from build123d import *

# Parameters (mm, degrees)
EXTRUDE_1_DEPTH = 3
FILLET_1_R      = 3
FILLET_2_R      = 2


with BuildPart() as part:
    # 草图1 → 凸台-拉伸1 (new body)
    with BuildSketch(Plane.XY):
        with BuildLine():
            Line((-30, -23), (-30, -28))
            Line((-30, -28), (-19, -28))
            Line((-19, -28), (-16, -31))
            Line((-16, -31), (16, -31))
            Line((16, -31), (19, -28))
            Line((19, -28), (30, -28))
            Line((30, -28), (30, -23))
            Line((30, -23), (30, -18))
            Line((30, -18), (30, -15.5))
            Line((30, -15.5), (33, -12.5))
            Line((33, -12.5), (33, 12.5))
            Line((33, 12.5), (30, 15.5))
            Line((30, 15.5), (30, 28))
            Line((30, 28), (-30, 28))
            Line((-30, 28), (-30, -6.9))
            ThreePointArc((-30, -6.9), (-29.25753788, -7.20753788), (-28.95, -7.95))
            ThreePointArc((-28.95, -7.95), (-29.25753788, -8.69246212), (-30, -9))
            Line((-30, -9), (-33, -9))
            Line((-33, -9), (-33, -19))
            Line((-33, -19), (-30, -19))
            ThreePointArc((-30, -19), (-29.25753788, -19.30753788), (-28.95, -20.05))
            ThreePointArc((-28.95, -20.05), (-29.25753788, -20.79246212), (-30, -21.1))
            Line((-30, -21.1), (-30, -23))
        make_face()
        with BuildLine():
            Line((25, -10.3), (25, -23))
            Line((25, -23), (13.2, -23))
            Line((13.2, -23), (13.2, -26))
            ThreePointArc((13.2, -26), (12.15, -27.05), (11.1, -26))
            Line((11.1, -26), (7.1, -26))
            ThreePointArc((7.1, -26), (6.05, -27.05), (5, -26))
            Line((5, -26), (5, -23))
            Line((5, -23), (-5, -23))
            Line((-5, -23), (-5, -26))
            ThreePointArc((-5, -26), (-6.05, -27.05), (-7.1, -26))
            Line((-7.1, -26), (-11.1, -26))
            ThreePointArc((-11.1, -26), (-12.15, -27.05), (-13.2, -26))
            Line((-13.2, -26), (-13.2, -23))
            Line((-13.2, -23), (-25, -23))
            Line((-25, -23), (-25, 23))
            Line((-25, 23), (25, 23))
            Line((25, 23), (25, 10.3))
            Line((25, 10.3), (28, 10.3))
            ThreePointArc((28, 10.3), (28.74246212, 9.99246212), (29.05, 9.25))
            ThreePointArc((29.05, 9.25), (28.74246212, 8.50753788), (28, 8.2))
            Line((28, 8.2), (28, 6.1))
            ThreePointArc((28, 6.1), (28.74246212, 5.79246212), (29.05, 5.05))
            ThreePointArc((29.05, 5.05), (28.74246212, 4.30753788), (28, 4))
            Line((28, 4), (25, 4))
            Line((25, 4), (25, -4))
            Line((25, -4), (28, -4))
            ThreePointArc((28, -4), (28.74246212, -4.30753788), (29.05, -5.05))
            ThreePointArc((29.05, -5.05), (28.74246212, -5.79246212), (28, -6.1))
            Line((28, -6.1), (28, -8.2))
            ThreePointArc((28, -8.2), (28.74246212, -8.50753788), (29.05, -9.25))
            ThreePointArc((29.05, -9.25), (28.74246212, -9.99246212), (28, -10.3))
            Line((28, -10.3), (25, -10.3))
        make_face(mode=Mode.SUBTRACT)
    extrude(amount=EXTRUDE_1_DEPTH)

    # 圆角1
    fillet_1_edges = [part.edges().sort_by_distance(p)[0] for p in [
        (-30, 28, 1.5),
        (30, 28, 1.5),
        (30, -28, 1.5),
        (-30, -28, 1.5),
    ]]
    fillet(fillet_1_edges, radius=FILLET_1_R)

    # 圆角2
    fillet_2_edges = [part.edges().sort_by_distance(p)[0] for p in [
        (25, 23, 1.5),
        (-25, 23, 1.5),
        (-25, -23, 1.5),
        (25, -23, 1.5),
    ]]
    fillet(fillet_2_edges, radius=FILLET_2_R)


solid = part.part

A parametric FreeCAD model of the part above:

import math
import FreeCAD as App
import Part
import Sketcher
from FreeCAD import Vector


def edges_at(feature, points):
    """Names of the edges that pass closest to the given points."""
    edges = feature.Shape.Edges
    near = lambda p: min(range(len(edges)), key=lambda i: edges[i].distToShape(Part.Vertex(*p))[0])
    return sorted({f"Edge{near(p) + 1}" for p in points})

doc = App.newDocument("Part")
body = doc.addObject("PartDesign::Body", "Body")

# Sketch on XY plane
sketch1 = doc.addObject("Sketcher::SketchObject", "Sketch")
body.addObject(sketch1)
sketch1.AttachmentSupport = (doc.XY_Plane, [""])
sketch1.MapMode = "FlatFace"
sketch1.addGeometry([
    Part.LineSegment(Vector(-30, -28, 0), Vector(-19, -28, 0)),  # 0
    Part.LineSegment(Vector(-19, -28, 0), Vector(-16, -31, 0)),  # 1
    Part.LineSegment(Vector(-16, -31, 0), Vector(16, -31, 0)),  # 2
    Part.LineSegment(Vector(16, -31, 0), Vector(19, -28, 0)),  # 3
    Part.LineSegment(Vector(19, -28, 0), Vector(30, -28, 0)),  # 4
    Part.LineSegment(Vector(30, -28, 0), Vector(30, -15.5, 0)),  # 5
    Part.LineSegment(Vector(30, -15.5, 0), Vector(33, -12.5, 0)),  # 6
    Part.LineSegment(Vector(33, -12.5, 0), Vector(33, 12.5, 0)),  # 7
    Part.LineSegment(Vector(33, 12.5, 0), Vector(30, 15.5, 0)),  # 8
    Part.LineSegment(Vector(30, 15.5, 0), Vector(30, 28, 0)),  # 9
    Part.LineSegment(Vector(30, 28, 0), Vector(-30, 28, 0)),  # 10
    Part.LineSegment(Vector(-30, 28, 0), Vector(-30, -6.9, 0)),  # 11
    Part.ArcOfCircle(Part.Circle(Vector(-30, -8, 0), Vector(0, 0, 1), 1.1), math.radians(0), math.radians(90)),  # 12
    Part.ArcOfCircle(Part.Circle(Vector(-30, -7.9, 0), Vector(0, 0, 1), 1.1), math.radians(-90), math.radians(0)),  # 13
    Part.LineSegment(Vector(-30, -9, 0), Vector(-33, -9, 0)),  # 14
    Part.LineSegment(Vector(-33, -9, 0), Vector(-33, -19, 0)),  # 15
    Part.LineSegment(Vector(-33, -19, 0), Vector(-30, -19, 0)),  # 16
    Part.ArcOfCircle(Part.Circle(Vector(-30, -20.1, 0), Vector(0, 0, 1), 1.1), math.radians(0), math.radians(90)),  # 17
    Part.ArcOfCircle(Part.Circle(Vector(-30, -20, 0), Vector(0, 0, 1), 1.1), math.radians(-90), math.radians(0)),  # 18
    Part.LineSegment(Vector(-30, -21.1, 0), Vector(-30, -28, 0)),  # 19
    Part.LineSegment(Vector(28, -10.3, 0), Vector(25, -10.3, 0)),  # 20
    Part.LineSegment(Vector(25, -10.3, 0), Vector(25, -23, 0)),  # 21
    Part.LineSegment(Vector(25, -23, 0), Vector(13.2, -23, 0)),  # 22
    Part.LineSegment(Vector(13.2, -23, 0), Vector(13.2, -26, 0)),  # 23
    Part.ArcOfCircle(Part.Circle(Vector(12.2, -26, 0), Vector(0, 0, 1), 1.1), math.radians(180), math.radians(360)),  # 24
    Part.LineSegment(Vector(11.1, -26, 0), Vector(7.1, -26, 0)),  # 25
    Part.ArcOfCircle(Part.Circle(Vector(6, -26, 0), Vector(0, 0, 1), 1.1), math.radians(180), math.radians(360)),  # 26
    Part.LineSegment(Vector(5, -26, 0), Vector(5, -23, 0)),  # 27
    Part.LineSegment(Vector(5, -23, 0), Vector(-5, -23, 0)),  # 28
    Part.LineSegment(Vector(-5, -23, 0), Vector(-5, -26, 0)),  # 29
    Part.ArcOfCircle(Part.Circle(Vector(-6, -26, 0), Vector(0, 0, 1), 1.1), math.radians(180), math.radians(360)),  # 30
    Part.LineSegment(Vector(-7.1, -26, 0), Vector(-11.1, -26, 0)),  # 31
    Part.ArcOfCircle(Part.Circle(Vector(-12.2, -26, 0), Vector(0, 0, 1), 1.1), math.radians(180), math.radians(360)),  # 32
    Part.LineSegment(Vector(-13.2, -26, 0), Vector(-13.2, -23, 0)),  # 33
    Part.LineSegment(Vector(-13.2, -23, 0), Vector(-25, -23, 0)),  # 34
    Part.LineSegment(Vector(-25, -23, 0), Vector(-25, 23, 0)),  # 35
    Part.LineSegment(Vector(-25, 23, 0), Vector(25, 23, 0)),  # 36
    Part.LineSegment(Vector(25, 23, 0), Vector(25, 10.3, 0)),  # 37
    Part.LineSegment(Vector(25, 10.3, 0), Vector(28, 10.3, 0)),  # 38
    Part.ArcOfCircle(Part.Circle(Vector(28, 9.2, 0), Vector(0, 0, 1), 1.1), math.radians(0), math.radians(90)),  # 39
    Part.ArcOfCircle(Part.Circle(Vector(28, 9.3, 0), Vector(0, 0, 1), 1.1), math.radians(-90), math.radians(0)),  # 40
    Part.LineSegment(Vector(28, 8.2, 0), Vector(28, 6.1, 0)),  # 41
    Part.ArcOfCircle(Part.Circle(Vector(28, 5, 0), Vector(0, 0, 1), 1.1), math.radians(0), math.radians(90)),  # 42
    Part.ArcOfCircle(Part.Circle(Vector(28, 5.1, 0), Vector(0, 0, 1), 1.1), math.radians(-90), math.radians(0)),  # 43
    Part.LineSegment(Vector(28, 4, 0), Vector(25, 4, 0)),  # 44
    Part.LineSegment(Vector(25, 4, 0), Vector(25, -4, 0)),  # 45
    Part.LineSegment(Vector(25, -4, 0), Vector(28, -4, 0)),  # 46
    Part.ArcOfCircle(Part.Circle(Vector(28, -5.1, 0), Vector(0, 0, 1), 1.1), math.radians(0), math.radians(90)),  # 47
    Part.ArcOfCircle(Part.Circle(Vector(28, -5, 0), Vector(0, 0, 1), 1.1), math.radians(-90), math.radians(0)),  # 48
    Part.LineSegment(Vector(28, -6.1, 0), Vector(28, -8.2, 0)),  # 49
    Part.ArcOfCircle(Part.Circle(Vector(28, -9.3, 0), Vector(0, 0, 1), 1.1), math.radians(0), math.radians(90)),  # 50
    Part.ArcOfCircle(Part.Circle(Vector(28, -9.2, 0), Vector(0, 0, 1), 1.1), math.radians(-90), math.radians(0)),  # 51
], False)
sketch1.addConstraint([
    Sketcher.Constraint("Coincident", 0, 2, 1, 1),
    Sketcher.Constraint("Coincident", 1, 2, 2, 1),
    Sketcher.Constraint("Coincident", 2, 2, 3, 1),
    Sketcher.Constraint("Coincident", 3, 2, 4, 1),
    Sketcher.Constraint("Coincident", 4, 2, 5, 1),
    Sketcher.Constraint("Coincident", 5, 2, 6, 1),
    Sketcher.Constraint("Coincident", 6, 2, 7, 1),
    Sketcher.Constraint("Coincident", 7, 2, 8, 1),
    Sketcher.Constraint("Coincident", 8, 2, 9, 1),
    Sketcher.Constraint("Coincident", 9, 2, 10, 1),
    Sketcher.Constraint("Coincident", 10, 2, 11, 1),
    Sketcher.Constraint("Coincident", 11, 2, 12, 2),
    Sketcher.Constraint("Tangent", 12, 1, 13, 2),
    Sketcher.Constraint("Tangent", 13, 1, 14, 1),
    Sketcher.Constraint("Coincident", 14, 2, 15, 1),
    Sketcher.Constraint("Coincident", 15, 2, 16, 1),
    Sketcher.Constraint("Tangent", 16, 2, 17, 2),
    Sketcher.Constraint("Tangent", 17, 1, 18, 2),
    Sketcher.Constraint("Coincident", 18, 1, 19, 1),
    Sketcher.Constraint("Coincident", 19, 2, 0, 1),
    Sketcher.Constraint("Coincident", 20, 2, 21, 1),
    Sketcher.Constraint("Coincident", 21, 2, 22, 1),
    Sketcher.Constraint("Coincident", 22, 2, 23, 1),
    Sketcher.Constraint("Tangent", 23, 2, 24, 2),
    Sketcher.Constraint("Coincident", 24, 1, 25, 1),
    Sketcher.Constraint("Coincident", 25, 2, 26, 2),
    Sketcher.Constraint("Tangent", 26, 1, 27, 1),
    Sketcher.Constraint("Coincident", 27, 2, 28, 1),
    Sketcher.Constraint("Coincident", 28, 2, 29, 1),
    Sketcher.Constraint("Tangent", 29, 2, 30, 2),
    Sketcher.Constraint("Coincident", 30, 1, 31, 1),
    Sketcher.Constraint("Coincident", 31, 2, 32, 2),
    Sketcher.Constraint("Tangent", 32, 1, 33, 1),
    Sketcher.Constraint("Coincident", 33, 2, 34, 1),
    Sketcher.Constraint("Coincident", 34, 2, 35, 1),
    Sketcher.Constraint("Coincident", 35, 2, 36, 1),
    Sketcher.Constraint("Coincident", 36, 2, 37, 1),
    Sketcher.Constraint("Coincident", 37, 2, 38, 1),
    Sketcher.Constraint("Tangent", 38, 2, 39, 2),
    Sketcher.Constraint("Tangent", 39, 1, 40, 2),
    Sketcher.Constraint("Coincident", 40, 1, 41, 1),
    Sketcher.Constraint("Coincident", 41, 2, 42, 2),
    Sketcher.Constraint("Tangent", 42, 1, 43, 2),
    Sketcher.Constraint("Tangent", 43, 1, 44, 1),
    Sketcher.Constraint("Coincident", 44, 2, 45, 1),
    Sketcher.Constraint("Coincident", 45, 2, 46, 1),
    Sketcher.Constraint("Tangent", 46, 2, 47, 2),
    Sketcher.Constraint("Tangent", 47, 1, 48, 2),
    Sketcher.Constraint("Coincident", 48, 1, 49, 1),
    Sketcher.Constraint("Coincident", 49, 2, 50, 2),
    Sketcher.Constraint("Tangent", 50, 1, 51, 2),
    Sketcher.Constraint("Tangent", 51, 1, 20, 1),
    Sketcher.Constraint("Horizontal", 0),
    Sketcher.Constraint("Horizontal", 2),
    Sketcher.Constraint("Horizontal", 4),
    Sketcher.Constraint("Vertical", 5),
    Sketcher.Constraint("Vertical", 7),
    Sketcher.Constraint("Vertical", 9),
    Sketcher.Constraint("Horizontal", 10),
    Sketcher.Constraint("Vertical", 11),
    Sketcher.Constraint("Horizontal", 14),
    Sketcher.Constraint("Vertical", 15),
    Sketcher.Constraint("Horizontal", 16),
    Sketcher.Constraint("Vertical", 19),
    Sketcher.Constraint("Horizontal", 20),
    Sketcher.Constraint("Vertical", 21),
    Sketcher.Constraint("Horizontal", 22),
    Sketcher.Constraint("Vertical", 23),
    Sketcher.Constraint("Horizontal", 25),
    Sketcher.Constraint("Vertical", 27),
    Sketcher.Constraint("Horizontal", 28),
    Sketcher.Constraint("Vertical", 29),
    Sketcher.Constraint("Horizontal", 31),
    Sketcher.Constraint("Vertical", 33),
    Sketcher.Constraint("Horizontal", 34),
    Sketcher.Constraint("Vertical", 35),
    Sketcher.Constraint("Horizontal", 36),
    Sketcher.Constraint("Vertical", 37),
    Sketcher.Constraint("Horizontal", 38),
    Sketcher.Constraint("Vertical", 41),
    Sketcher.Constraint("Horizontal", 44),
    Sketcher.Constraint("Vertical", 45),
    Sketcher.Constraint("Horizontal", 46),
    Sketcher.Constraint("Vertical", 49),
    Sketcher.Constraint("Equal", 12, 13),
    Sketcher.Constraint("Equal", 13, 17),
    Sketcher.Constraint("Equal", 17, 18),
    Sketcher.Constraint("Equal", 18, 24),
    Sketcher.Constraint("Equal", 24, 26),
    Sketcher.Constraint("Equal", 26, 30),
    Sketcher.Constraint("Equal", 30, 32),
    Sketcher.Constraint("Equal", 32, 39),
    Sketcher.Constraint("Equal", 39, 40),
    Sketcher.Constraint("Equal", 40, 42),
    Sketcher.Constraint("Equal", 42, 43),
    Sketcher.Constraint("Equal", 43, 47),
    Sketcher.Constraint("Equal", 47, 48),
    Sketcher.Constraint("Equal", 48, 50),
    Sketcher.Constraint("Equal", 50, 51),
    Sketcher.Constraint("Symmetric", 4, 2, 10, 2, -1, 1),
    Sketcher.Constraint("Symmetric", 9, 2, 19, 2, -1, 1),
    Sketcher.Constraint("Symmetric", 21, 2, 35, 2, -1, 1),
    Sketcher.Constraint("Symmetric", 34, 2, 36, 2, -1, 1),
    Sketcher.Constraint("Symmetric", 26, 3, 30, 3, -2),
    Sketcher.Constraint("Symmetric", 24, 3, 32, 3, -2),
    Sketcher.Constraint("Symmetric", 42, 3, 47, 3, -1),
    Sketcher.Constraint("Symmetric", 39, 3, 50, 3, -1),
    Sketcher.Constraint("Symmetric", 5, 2, 8, 2, -1),
    Sketcher.Constraint("Perpendicular", 1, 3),
    Sketcher.Constraint("Parallel", 3, 6),
    Sketcher.Constraint("Perpendicular", 6, 8),
    Sketcher.Constraint("Horizontal", 24, 3, 26, 3),
    Sketcher.Constraint("Horizontal", 13, 3, 12, 1),
    Sketcher.Constraint("Horizontal", 18, 3, 17, 1),
    Sketcher.Constraint("Horizontal", 23, 2, 24, 1),
    Sketcher.Constraint("Horizontal", 22, 2, 27, 2),
    Sketcher.Constraint("Horizontal", 29, 2, 30, 1),
    Sketcher.Constraint("Horizontal", 40, 3, 39, 1),
    Sketcher.Constraint("Horizontal", 43, 3, 42, 1),
    Sketcher.Constraint("Horizontal", 48, 3, 47, 1),
    Sketcher.Constraint("Horizontal", 51, 3, 50, 1),
    Sketcher.Constraint("Vertical", 13, 3, 17, 3),
    Sketcher.Constraint("Vertical", 40, 3, 42, 3),
    Sketcher.Constraint("Vertical", 18, 3, 10, 2),
    Sketcher.Constraint("Vertical", 38, 2, 40, 1),
    Sketcher.Constraint("Vertical", 37, 2, 44, 2),
    Sketcher.Constraint("Vertical", 46, 2, 48, 1),
    Sketcher.Constraint("Equal", 0, 4),
    Sketcher.Constraint("Equal", 16, 20),
    Sketcher.Constraint("Equal", 28, 15),
    Sketcher.Constraint("Equal", 46, 23),
    Sketcher.Constraint("Equal", 1, 3),
    Sketcher.Constraint("Equal", 3, 6),
    Sketcher.Constraint("DistanceX", 0, 1, 0, 2, 11.0),
    Sketcher.Constraint("DistanceX", 2, 1, 2, 2, 32.0),
    Sketcher.Constraint("DistanceX", 10, 2, 10, 1, 60.0),
    Sketcher.Constraint("DistanceX", 14, 2, 14, 1, 3.0),
    Sketcher.Constraint("DistanceX", 25, 2, 25, 1, 4.0),
    Sketcher.Constraint("DistanceX", 28, 2, 28, 1, 10.0),
    Sketcher.Constraint("DistanceX", 36, 1, 36, 2, 50.0),
    Sketcher.Constraint("DistanceY", 7, 1, 7, 2, 25.0),
    Sketcher.Constraint("DistanceY", 35, 1, 35, 2, 46.0),
    Sketcher.Constraint("DistanceY", 45, 2, 45, 1, 8.0),
    Sketcher.Constraint("Radius", 12, 1.05),
    Sketcher.Constraint("DistanceY", 5, 1, 5, 2, 12.5),
    Sketcher.Constraint("DistanceY", 11, 2, 11, 1, 34.9),
    Sketcher.Constraint("DistanceY", 21, 2, 21, 1, 12.7),
])
pad1 = doc.addObject("PartDesign::Pad", "Pad")
body.addObject(pad1)
pad1.Profile = sketch1
pad1.Length = 3
doc.recompute()

fillet = doc.addObject("PartDesign::Fillet", "Fillet")
body.addObject(fillet)
fillet.Base = (pad1, edges_at(pad1, [
    (-30, 28, 1.5),
    (30, 28, 1.5),
    (30, -28, 1.5),
    (-30, -28, 1.5),
]))
fillet.Radius = 3
doc.recompute()

fillet2 = doc.addObject("PartDesign::Fillet", "Fillet001")
body.addObject(fillet2)
fillet2.Base = (fillet, edges_at(fillet, [
    (25, 23, 1.5),
    (-25, 23, 1.5),
    (-25, -23, 1.5),
    (25, -23, 1.5),
]))
fillet2.Radius = 2

doc.recompute()
